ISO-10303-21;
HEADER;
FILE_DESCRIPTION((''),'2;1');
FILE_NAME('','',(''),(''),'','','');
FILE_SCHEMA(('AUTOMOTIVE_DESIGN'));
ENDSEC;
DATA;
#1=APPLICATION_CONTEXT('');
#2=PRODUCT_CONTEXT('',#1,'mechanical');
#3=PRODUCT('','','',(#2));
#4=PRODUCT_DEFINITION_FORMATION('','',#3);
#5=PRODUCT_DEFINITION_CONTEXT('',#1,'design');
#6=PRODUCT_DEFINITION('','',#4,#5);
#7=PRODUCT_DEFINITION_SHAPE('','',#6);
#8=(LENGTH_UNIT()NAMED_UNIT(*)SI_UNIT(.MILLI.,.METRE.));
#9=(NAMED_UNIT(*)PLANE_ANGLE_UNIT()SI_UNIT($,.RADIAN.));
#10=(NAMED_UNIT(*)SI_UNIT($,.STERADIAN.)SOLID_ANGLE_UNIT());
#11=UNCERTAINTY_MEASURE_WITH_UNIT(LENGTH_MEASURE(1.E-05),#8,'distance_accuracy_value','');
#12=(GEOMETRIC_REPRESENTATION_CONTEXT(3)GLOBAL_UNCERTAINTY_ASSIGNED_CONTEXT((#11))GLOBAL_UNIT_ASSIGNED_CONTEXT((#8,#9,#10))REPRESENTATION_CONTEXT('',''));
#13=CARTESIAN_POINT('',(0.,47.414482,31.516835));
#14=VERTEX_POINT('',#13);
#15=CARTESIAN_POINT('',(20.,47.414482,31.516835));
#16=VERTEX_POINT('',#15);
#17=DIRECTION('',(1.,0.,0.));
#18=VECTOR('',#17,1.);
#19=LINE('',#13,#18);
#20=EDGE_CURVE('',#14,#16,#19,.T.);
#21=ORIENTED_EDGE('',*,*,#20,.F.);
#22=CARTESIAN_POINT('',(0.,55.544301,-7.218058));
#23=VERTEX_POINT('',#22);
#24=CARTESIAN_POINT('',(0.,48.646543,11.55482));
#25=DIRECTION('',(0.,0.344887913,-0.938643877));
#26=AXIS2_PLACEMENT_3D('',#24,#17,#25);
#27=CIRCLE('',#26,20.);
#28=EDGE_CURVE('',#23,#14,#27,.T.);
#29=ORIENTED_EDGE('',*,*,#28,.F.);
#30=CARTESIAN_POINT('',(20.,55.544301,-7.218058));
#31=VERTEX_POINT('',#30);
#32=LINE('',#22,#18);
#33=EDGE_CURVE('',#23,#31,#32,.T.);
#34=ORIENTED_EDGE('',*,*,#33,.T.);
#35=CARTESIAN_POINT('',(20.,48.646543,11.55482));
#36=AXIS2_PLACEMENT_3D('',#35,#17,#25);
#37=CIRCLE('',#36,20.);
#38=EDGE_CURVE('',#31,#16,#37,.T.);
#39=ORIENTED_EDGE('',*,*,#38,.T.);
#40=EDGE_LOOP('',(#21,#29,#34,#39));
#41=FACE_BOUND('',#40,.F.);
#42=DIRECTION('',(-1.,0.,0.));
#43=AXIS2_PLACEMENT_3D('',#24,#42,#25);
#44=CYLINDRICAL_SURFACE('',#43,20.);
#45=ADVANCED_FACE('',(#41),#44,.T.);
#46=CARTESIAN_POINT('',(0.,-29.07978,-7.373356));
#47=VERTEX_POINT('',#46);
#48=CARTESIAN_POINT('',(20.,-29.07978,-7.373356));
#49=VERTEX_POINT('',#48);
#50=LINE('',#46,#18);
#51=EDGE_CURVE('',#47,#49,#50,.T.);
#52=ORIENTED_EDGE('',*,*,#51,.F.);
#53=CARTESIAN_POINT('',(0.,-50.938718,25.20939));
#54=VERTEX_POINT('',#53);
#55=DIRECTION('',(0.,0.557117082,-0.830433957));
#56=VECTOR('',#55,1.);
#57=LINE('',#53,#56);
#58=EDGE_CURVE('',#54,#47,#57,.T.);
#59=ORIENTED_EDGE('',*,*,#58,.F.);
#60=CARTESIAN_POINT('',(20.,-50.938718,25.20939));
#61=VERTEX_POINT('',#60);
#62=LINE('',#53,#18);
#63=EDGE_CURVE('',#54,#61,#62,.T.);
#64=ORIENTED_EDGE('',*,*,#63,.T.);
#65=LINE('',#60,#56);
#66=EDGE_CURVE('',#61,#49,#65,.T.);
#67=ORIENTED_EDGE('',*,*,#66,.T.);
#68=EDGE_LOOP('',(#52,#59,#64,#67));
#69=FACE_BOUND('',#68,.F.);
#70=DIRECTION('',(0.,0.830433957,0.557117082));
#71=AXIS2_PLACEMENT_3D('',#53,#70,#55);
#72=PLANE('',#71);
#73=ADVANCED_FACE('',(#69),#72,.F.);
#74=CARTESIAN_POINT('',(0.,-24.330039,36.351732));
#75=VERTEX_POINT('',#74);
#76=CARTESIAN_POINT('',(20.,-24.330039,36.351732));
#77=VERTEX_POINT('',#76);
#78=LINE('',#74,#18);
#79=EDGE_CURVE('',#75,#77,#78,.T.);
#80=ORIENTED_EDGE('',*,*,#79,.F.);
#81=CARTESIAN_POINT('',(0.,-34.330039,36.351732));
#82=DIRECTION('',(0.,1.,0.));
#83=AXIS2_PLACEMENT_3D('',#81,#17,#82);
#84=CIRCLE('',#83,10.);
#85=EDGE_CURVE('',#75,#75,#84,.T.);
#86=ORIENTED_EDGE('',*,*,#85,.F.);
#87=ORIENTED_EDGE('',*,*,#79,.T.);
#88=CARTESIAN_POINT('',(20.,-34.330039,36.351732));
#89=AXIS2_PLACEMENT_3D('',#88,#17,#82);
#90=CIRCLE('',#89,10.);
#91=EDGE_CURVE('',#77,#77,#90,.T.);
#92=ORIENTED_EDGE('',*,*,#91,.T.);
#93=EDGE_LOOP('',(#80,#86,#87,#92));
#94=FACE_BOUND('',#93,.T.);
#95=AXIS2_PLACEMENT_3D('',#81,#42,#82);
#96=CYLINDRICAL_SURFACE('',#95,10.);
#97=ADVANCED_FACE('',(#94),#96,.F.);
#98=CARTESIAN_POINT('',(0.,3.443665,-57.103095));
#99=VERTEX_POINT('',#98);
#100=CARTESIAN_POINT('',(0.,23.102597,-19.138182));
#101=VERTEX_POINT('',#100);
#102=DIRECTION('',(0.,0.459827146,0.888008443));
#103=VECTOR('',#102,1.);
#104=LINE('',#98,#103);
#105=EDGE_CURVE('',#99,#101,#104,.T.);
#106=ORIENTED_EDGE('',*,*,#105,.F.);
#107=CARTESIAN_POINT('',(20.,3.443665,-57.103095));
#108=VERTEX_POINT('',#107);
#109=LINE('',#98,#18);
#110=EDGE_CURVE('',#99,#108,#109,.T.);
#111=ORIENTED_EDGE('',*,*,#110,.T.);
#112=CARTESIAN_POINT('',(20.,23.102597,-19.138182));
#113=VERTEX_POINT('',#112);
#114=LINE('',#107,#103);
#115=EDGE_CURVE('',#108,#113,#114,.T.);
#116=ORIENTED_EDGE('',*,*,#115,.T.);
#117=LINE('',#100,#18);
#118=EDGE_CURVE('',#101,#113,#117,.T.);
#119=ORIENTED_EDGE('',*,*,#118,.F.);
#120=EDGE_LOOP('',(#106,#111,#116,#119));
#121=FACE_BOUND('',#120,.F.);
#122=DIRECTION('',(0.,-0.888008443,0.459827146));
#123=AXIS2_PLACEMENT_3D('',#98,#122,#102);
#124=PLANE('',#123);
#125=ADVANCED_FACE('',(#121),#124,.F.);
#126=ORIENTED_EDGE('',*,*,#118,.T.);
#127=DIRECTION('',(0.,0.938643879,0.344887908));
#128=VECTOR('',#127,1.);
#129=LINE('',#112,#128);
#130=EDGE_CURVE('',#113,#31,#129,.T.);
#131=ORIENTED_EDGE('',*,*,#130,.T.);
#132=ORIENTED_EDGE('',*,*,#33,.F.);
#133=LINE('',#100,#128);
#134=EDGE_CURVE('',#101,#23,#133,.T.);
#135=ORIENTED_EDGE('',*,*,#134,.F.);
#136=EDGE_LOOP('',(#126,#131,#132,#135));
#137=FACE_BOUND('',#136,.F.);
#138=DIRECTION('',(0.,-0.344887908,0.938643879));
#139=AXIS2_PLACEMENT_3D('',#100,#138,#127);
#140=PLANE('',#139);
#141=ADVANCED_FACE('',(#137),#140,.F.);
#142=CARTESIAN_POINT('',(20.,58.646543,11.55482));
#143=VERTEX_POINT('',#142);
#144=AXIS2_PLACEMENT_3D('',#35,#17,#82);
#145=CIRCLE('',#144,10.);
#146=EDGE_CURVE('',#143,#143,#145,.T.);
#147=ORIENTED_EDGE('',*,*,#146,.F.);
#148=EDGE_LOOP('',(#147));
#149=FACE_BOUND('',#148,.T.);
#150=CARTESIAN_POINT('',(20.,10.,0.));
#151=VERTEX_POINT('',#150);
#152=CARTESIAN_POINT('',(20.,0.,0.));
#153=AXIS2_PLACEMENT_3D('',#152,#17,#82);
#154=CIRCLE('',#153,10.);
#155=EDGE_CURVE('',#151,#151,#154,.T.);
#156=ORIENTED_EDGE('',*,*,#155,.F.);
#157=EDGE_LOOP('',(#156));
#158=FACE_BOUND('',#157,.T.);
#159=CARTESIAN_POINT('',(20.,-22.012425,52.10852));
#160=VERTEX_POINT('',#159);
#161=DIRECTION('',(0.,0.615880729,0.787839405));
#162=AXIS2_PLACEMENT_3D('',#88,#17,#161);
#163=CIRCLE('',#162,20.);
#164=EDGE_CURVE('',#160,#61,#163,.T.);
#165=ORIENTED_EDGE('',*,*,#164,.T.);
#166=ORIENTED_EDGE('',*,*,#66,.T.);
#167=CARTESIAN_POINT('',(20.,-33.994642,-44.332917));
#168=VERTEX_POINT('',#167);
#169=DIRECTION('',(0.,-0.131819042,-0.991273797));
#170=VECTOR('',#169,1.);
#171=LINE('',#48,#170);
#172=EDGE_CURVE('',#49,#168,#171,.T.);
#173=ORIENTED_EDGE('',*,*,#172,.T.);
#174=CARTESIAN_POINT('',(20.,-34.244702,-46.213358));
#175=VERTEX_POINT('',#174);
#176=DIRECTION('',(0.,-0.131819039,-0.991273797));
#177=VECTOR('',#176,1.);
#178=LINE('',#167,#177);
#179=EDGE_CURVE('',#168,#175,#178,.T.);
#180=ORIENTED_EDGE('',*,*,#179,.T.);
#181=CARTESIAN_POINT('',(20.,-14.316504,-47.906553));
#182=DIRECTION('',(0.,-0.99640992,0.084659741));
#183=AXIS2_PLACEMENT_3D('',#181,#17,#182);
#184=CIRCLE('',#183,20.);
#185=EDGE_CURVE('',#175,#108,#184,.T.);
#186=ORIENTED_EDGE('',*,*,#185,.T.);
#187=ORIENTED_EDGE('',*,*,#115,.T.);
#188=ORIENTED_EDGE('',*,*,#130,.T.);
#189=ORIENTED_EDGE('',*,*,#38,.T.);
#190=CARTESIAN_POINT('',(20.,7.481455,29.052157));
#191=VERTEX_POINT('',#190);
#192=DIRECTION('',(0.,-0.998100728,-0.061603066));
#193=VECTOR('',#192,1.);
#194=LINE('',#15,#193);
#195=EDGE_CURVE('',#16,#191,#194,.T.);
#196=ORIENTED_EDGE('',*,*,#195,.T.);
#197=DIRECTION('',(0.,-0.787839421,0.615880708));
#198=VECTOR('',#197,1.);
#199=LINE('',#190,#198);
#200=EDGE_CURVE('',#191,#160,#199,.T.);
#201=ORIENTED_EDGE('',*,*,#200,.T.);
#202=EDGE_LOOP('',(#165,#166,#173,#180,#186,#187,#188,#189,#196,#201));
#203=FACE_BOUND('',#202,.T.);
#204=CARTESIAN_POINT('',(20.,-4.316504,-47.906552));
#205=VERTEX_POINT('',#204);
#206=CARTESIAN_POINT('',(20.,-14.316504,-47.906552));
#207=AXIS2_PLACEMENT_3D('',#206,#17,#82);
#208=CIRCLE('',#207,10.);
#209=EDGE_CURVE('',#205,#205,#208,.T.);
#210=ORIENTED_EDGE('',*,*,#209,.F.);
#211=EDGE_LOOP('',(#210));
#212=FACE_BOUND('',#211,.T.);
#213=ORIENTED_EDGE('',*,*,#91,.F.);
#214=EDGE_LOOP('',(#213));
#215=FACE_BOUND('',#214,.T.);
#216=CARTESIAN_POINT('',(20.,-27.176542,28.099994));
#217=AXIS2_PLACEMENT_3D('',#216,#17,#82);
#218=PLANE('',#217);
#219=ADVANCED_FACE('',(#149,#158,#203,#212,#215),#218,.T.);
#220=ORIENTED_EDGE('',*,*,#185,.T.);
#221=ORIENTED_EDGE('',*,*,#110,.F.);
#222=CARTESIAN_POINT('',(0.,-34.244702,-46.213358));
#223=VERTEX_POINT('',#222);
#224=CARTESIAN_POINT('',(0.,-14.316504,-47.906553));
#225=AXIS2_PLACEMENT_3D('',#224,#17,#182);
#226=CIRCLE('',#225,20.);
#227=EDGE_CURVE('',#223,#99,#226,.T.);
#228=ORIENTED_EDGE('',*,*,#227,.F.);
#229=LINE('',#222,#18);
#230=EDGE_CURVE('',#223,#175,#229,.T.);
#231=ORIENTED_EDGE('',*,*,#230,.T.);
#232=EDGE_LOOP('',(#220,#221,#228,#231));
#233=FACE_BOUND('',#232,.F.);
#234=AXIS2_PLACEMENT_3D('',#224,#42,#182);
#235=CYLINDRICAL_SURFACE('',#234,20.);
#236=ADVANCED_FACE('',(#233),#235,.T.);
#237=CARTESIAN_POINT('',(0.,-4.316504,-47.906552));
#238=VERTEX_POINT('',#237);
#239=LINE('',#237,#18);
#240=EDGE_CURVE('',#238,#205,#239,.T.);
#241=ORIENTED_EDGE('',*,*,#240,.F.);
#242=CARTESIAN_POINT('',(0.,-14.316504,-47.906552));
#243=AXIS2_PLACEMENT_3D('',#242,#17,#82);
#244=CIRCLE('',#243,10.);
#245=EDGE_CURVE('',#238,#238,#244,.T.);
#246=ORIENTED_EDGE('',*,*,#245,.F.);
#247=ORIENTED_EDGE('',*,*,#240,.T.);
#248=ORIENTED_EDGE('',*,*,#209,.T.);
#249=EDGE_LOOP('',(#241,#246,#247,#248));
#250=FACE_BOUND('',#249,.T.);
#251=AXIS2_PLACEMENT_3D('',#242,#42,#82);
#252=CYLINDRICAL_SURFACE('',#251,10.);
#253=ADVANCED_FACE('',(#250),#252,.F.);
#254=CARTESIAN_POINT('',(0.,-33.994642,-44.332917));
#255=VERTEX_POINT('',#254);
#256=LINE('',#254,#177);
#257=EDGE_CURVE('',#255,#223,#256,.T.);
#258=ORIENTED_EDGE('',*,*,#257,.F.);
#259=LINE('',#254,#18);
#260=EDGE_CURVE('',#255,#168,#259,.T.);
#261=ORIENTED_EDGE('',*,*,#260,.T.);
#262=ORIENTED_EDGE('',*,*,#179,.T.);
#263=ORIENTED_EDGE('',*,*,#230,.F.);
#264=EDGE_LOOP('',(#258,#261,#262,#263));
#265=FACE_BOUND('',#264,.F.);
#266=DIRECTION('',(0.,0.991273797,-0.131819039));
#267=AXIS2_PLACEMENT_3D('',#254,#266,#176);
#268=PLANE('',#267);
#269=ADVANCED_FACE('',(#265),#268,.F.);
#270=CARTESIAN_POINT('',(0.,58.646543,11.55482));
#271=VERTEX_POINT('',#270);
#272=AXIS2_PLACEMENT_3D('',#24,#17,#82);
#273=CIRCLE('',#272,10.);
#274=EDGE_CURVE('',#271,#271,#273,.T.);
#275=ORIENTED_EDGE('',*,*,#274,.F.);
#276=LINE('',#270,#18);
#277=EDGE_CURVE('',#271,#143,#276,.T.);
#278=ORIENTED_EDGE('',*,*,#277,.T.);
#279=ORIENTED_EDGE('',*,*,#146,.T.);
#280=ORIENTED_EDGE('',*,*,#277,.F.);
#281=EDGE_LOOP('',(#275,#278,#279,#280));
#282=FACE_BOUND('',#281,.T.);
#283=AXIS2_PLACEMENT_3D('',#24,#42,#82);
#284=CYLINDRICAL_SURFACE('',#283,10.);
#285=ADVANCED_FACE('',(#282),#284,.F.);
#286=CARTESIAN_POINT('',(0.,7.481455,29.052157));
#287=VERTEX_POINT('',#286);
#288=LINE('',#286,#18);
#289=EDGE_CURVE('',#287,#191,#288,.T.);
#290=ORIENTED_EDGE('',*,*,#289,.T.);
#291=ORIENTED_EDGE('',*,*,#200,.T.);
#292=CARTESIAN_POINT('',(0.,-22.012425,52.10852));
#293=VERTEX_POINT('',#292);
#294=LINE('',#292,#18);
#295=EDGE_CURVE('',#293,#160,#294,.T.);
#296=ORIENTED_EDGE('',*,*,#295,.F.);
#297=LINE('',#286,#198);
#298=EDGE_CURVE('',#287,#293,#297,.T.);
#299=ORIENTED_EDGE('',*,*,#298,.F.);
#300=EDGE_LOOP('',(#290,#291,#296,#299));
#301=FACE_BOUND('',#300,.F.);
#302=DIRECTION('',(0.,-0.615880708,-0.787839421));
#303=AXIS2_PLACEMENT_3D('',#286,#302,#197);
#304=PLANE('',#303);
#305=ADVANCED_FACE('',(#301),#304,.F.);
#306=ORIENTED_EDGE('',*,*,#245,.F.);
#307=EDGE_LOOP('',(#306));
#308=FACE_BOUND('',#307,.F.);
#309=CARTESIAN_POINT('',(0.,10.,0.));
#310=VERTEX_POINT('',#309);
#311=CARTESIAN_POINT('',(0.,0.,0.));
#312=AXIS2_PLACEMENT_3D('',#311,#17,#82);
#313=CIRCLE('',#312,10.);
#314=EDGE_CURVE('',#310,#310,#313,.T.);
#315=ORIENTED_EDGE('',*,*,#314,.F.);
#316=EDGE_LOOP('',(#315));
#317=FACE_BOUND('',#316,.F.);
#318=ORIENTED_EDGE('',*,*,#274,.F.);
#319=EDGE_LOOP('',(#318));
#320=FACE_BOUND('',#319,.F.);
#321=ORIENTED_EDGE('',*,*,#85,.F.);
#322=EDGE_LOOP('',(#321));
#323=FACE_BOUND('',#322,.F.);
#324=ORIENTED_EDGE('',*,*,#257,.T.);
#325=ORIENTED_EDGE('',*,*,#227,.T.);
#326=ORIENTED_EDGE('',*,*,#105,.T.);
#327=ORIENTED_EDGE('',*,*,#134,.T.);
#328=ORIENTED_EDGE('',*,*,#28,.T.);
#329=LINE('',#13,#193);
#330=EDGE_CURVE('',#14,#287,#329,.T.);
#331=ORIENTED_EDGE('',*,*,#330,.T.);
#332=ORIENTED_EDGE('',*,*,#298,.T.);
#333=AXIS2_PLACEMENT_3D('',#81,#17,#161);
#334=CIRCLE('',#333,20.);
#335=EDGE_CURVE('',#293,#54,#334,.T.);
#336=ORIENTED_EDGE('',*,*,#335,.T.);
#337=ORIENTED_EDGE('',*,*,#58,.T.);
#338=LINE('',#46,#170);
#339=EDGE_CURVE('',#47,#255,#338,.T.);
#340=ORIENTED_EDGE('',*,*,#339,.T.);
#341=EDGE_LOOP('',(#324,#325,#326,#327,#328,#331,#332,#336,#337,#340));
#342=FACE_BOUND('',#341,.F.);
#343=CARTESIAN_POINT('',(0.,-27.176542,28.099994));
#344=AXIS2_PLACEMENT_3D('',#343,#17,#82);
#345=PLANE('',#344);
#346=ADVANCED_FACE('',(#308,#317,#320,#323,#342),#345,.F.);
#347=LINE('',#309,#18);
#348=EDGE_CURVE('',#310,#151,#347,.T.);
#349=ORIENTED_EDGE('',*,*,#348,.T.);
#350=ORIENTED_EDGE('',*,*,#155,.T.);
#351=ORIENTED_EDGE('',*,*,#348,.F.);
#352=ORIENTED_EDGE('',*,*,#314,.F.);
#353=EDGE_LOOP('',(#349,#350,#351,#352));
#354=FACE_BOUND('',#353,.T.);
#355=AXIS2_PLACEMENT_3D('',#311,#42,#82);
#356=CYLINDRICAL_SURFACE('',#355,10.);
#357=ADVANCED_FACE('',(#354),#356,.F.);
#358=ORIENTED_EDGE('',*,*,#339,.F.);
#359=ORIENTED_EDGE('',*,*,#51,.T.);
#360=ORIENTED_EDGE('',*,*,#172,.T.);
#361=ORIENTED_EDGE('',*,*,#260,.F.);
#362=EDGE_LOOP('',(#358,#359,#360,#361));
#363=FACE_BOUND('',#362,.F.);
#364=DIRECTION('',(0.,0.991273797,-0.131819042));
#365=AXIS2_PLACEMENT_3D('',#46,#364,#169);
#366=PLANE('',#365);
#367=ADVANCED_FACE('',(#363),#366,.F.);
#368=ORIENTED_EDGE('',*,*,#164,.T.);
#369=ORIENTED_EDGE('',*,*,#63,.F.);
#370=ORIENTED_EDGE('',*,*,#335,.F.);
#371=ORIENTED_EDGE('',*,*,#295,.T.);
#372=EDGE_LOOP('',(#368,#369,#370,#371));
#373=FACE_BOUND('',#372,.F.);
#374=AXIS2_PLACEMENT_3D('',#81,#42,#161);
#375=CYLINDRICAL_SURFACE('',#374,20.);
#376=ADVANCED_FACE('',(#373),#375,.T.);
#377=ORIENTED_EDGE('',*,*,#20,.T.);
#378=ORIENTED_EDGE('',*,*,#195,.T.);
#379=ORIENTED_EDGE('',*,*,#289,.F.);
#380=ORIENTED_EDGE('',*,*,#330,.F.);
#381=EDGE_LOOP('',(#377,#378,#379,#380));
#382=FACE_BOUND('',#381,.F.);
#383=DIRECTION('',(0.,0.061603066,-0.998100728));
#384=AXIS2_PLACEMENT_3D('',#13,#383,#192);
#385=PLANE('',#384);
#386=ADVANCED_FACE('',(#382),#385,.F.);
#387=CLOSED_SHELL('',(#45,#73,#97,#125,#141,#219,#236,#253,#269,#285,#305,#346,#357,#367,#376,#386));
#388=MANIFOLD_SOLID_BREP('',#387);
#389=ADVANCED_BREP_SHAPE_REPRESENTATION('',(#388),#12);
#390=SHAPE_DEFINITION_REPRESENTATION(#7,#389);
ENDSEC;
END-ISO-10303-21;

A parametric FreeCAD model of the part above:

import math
import FreeCAD as App
import Part
import Sketcher

V = App.Vector
Q = App.Units.Quantity

doc = App.newDocument("Part")
body = doc.addObject("PartDesign::Body", "Body")

# Sketch on YZ plane
sketch1 = doc.addObject("Sketcher::SketchObject", "Sketch")
body.addObject(sketch1)
sketch1.AttachmentSupport = (doc.YZ_Plane, [""])
sketch1.MapMode = "FlatFace"
sketch1.addGeometry([
    Part.LineSegment(V(7.481455, 29.052157, 0), V(-22.012425, 52.10852, 0)),  # 0
    Part.ArcOfCircle(Part.Circle(V(-34.330039, 36.351732, 0), V(0, 0, 1), 20), math.radians(51.984056), math.radians(213.85666)),  # 1
    Part.LineSegment(V(-50.938718, 25.20939, 0), V(-29.07978, -7.373356, 0)),  # 2
    Part.LineSegment(V(-29.07978, -7.373356, 0), V(-33.994642, -44.332917, 0)),  # 3
    Part.LineSegment(V(-33.994642, -44.332917, 0), V(-34.244702, -46.213358, 0)),  # 4
    Part.ArcOfCircle(Part.Circle(V(-14.316504, -47.906553, 0), V(0, 0, 1), 20), math.radians(175.143541), math.radians(332.624048)),  # 5
    Part.LineSegment(V(3.443665, -57.103095, 0), V(23.102597, -19.138182, 0)),  # 6
    Part.LineSegment(V(23.102597, -19.138182, 0), V(55.544301, -7.218058, 0)),  # 7
    Part.ArcOfCircle(Part.Circle(V(48.646543, 11.55482, 0), V(0, 0, 1), 20), math.radians(-69.825046), math.radians(93.53183)),  # 8
    Part.LineSegment(V(47.414482, 31.516835, 0), V(7.481455, 29.052157, 0)),  # 9
    Part.Circle(V(-14.316504, -47.906552, 0), V(0, 0, 1), 10),  # 10
    Part.Circle(V(0, 0, 0), V(0, 0, 1), 10),  # 11
    Part.Circle(V(-34.330039, 36.351732, 0), V(0, 0, 1), 10),  # 12
    Part.Circle(V(48.646543, 11.55482, 0), V(0, 0, 1), 10),  # 13
], False)
sketch1.addConstraint([
    Sketcher.Constraint("Tangent", 0, 2, 1, 1),
    Sketcher.Constraint("Tangent", 1, 2, 2, 1),
    Sketcher.Constraint("Coincident", 2, 2, 3, 1),
    Sketcher.Constraint("Coincident", 3, 2, 4, 1),
    Sketcher.Constraint("Coincident", 4, 2, 5, 1),
    Sketcher.Constraint("Tangent", 5, 2, 6, 1),
    Sketcher.Constraint("Coincident", 6, 2, 7, 1),
    Sketcher.Constraint("Tangent", 7, 2, 8, 1),
    Sketcher.Constraint("Tangent", 8, 2, 9, 1),
    Sketcher.Constraint("Coincident", 9, 2, 0, 1),
    Sketcher.Constraint("Coincident", 11, 3, -1, 1),
    Sketcher.Constraint("Coincident", 10, 3, 5, 3),
    Sketcher.Constraint("Coincident", 12, 3, 1, 3),
    Sketcher.Constraint("Coincident", 13, 3, 8, 3),
    Sketcher.Constraint("Equal", 1, 5),
    Sketcher.Constraint("Equal", 5, 8),
    Sketcher.Constraint("Equal", 10, 11),
    Sketcher.Constraint("Equal", 11, 12),
    Sketcher.Constraint("Equal", 12, 13),
    Sketcher.Constraint("Parallel", 3, 4),
    Sketcher.Constraint("Diameter", 10, Q("20 mm")),
    Sketcher.Constraint("Radius", 1, Q("20 mm")),
    Sketcher.Constraint("DistanceY", 4, 2, 2, 2, Q("38.840002 mm")),
    Sketcher.Constraint("DistanceY", 6, 2, 8, 3, Q("30.693002 mm")),
    Sketcher.Constraint("DistanceX", 4, 2, -1, 1, Q("34.244702 mm")),
    Sketcher.Constraint("DistanceX", -1, 1, 7, 2, Q("55.544301 mm")),
    Sketcher.Constraint("DistanceY", 8, 3, 0, 2, Q("40.5537 mm")),
    Sketcher.Constraint("DistanceX", 4, 2, 5, 3, Q("19.928198 mm")),
    Sketcher.Constraint("DistanceX", 10, 3, 6, 2, Q("37.419101 mm")),
    Sketcher.Constraint("Distance", 0, Q("37.436411 mm")),
    Sketcher.Constraint("DistanceX", 1, 3, -1, 1, Q("34.330039 mm")),
    Sketcher.Constraint("DistanceY", -1, 1, 8, 3, Q("11.55482 mm")),
    Sketcher.Constraint("DistanceY", 10, 3, -1, 1, Q("47.906552 mm")),
    Sketcher.Constraint("DistanceY", -1, 1, 12, 3, Q("36.351732 mm")),
    Sketcher.Constraint("DistanceX", 1, 2, -1, 1, Q("50.938718 mm")),
    Sketcher.Constraint("DistanceX", 3, 2, 5, 3, Q("19.678138 mm")),
])
pad1 = doc.addObject("PartDesign::Pad", "Pad")
body.addObject(pad1)
pad1.Profile = sketch1
pad1.Length = 20

doc.recompute()
